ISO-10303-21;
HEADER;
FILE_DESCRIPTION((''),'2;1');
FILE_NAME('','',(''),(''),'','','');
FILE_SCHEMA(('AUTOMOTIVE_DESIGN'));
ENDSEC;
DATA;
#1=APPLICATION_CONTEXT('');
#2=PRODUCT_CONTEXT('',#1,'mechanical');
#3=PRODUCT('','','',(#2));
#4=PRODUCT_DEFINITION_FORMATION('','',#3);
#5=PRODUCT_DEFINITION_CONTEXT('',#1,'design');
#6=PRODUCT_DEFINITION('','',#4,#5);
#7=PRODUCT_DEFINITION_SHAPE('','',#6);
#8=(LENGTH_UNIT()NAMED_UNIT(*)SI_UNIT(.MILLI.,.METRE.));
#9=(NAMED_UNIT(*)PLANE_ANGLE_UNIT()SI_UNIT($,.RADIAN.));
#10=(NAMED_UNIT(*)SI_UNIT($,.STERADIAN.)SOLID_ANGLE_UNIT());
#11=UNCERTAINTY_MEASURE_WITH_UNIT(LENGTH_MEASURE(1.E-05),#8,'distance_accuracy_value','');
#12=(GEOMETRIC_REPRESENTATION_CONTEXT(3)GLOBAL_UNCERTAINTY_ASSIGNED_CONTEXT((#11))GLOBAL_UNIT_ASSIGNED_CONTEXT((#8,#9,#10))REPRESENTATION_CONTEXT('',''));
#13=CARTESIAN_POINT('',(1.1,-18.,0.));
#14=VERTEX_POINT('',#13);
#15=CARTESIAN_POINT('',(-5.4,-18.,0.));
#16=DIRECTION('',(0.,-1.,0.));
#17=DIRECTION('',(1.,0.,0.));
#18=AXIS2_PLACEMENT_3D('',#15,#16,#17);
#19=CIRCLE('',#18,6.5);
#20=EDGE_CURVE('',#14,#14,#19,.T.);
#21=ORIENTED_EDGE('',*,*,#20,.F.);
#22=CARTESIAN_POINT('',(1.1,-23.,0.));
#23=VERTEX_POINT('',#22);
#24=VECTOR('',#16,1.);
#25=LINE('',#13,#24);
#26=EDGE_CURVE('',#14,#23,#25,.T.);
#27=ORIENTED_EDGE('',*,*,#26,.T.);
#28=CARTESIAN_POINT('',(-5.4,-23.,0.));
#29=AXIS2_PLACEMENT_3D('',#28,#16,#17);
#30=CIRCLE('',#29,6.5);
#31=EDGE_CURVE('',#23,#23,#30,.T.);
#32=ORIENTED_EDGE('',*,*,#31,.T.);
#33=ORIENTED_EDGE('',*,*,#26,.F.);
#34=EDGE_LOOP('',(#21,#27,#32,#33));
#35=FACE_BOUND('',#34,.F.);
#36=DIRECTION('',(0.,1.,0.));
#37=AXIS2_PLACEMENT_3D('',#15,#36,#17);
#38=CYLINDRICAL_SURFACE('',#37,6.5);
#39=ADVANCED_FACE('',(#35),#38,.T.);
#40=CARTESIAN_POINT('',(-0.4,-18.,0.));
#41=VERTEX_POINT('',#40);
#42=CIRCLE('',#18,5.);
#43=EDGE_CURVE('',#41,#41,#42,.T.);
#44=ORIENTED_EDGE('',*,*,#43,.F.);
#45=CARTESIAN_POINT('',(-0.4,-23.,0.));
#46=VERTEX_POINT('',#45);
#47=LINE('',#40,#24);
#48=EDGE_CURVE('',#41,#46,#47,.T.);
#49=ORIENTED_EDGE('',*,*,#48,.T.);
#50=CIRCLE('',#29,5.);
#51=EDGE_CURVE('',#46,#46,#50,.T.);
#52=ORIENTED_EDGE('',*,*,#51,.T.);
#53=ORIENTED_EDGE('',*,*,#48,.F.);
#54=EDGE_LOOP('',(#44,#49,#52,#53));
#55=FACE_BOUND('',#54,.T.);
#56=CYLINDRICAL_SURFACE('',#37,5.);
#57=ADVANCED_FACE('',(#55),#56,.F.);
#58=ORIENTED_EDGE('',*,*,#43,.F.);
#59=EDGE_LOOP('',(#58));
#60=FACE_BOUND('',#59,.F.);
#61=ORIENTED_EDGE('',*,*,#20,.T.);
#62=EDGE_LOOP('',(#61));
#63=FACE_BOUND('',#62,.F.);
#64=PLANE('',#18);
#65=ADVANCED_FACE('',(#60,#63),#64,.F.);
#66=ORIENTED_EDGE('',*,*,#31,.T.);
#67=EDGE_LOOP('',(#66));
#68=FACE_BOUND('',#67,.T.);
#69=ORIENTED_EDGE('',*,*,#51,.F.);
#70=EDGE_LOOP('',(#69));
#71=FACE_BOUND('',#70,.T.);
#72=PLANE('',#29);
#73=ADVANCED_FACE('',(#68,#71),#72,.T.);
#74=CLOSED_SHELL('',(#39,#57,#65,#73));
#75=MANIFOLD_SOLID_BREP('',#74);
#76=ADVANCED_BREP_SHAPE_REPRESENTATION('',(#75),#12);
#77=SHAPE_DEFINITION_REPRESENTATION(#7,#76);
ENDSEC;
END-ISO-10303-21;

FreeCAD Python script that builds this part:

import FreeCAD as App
import Part
import Sketcher
Q = App.Units.Quantity

doc = App.newDocument("Part")
body = doc.addObject("PartDesign::Body", "Body")

sketch1 = doc.addObject("Sketcher::SketchObject", "Sketch")
body.addObject(sketch1)
sketch1.AttachmentSupport = (doc.XY_Plane, [""])
sketch1.MapMode = "FlatFace"
sketch1.addGeometry(Part.Circle(App.Vector(0, 0, 0), App.Vector(0, 0, 1), 5), False)
sketch1.addConstraint([
    Sketcher.Constraint("Coincident", 0, 3, -1, 1),
    Sketcher.Constraint("Diameter", 0, Q("10 mm")),
])
pad1 = doc.addObject("PartDesign::Pad", "Pad")
body.addObject(pad1)
pad1.Profile = sketch1
pad1.Length = 5
body2 = doc.addObject("PartDesign::Body", "Body001")
doc.recompute()

body.Placement = App.Placement(App.Vector(0, 0, 0), App.Rotation(App.Vector(1, 0, 0), 90))
boolean = doc.addObject("PartDesign::Boolean", "Boolean")
body2.addObject(boolean)
boolean.Type = "Fuse"
boolean.addObjects([body])
body3 = doc.addObject("PartDesign::Body", "Body002")
doc.recompute()

body2.Placement = App.Placement(App.Vector(-5.4, 46, 0), App.Rotation(App.Vector(0, 0, 1), 0))
boolean2 = doc.addObject("PartDesign::Boolean", "Boolean001")
body3.addObject(boolean2)
boolean2.Type = "Fuse"
boolean2.addObjects([body2])
body4 = doc.addObject("PartDesign::Body", "Body003")

sketch2 = doc.addObject("Sketcher::SketchObject", "Sketch001")
body4.addObject(sketch2)
sketch2.AttachmentSupport = (doc.getObject("XY_Plane003"), [""])
sketch2.MapMode = "FlatFace"
sketch2.addGeometry(Part.Circle(App.Vector(0, 0, 0), App.Vector(0, 0, 1), 6), False)
sketch2.addConstraint([
    Sketcher.Constraint("Coincident", 0, 3, -1, 1),
    Sketcher.Constraint("Diameter", 0, Q("13 mm")),
])
pad2 = doc.addObject("PartDesign::Pad", "Pad001")
body4.addObject(pad2)
pad2.Profile = sketch2
pad2.Length = 5
body5 = doc.addObject("PartDesign::Body", "Body004")
doc.recompute()

body4.Placement = App.Placement(App.Vector(0, 0, 0), App.Rotation(App.Vector(1, 0, 0), 90))
boolean3 = doc.addObject("PartDesign::Boolean", "Boolean002")
body5.addObject(boolean3)
boolean3.Type = "Fuse"
boolean3.addObjects([body4])
body6 = doc.addObject("PartDesign::Body", "Body005")
doc.recompute()

body5.Placement = App.Placement(App.Vector(-5.4, 46, 0), App.Rotation(App.Vector(0, 0, 1), 0))
boolean4 = doc.addObject("PartDesign::Boolean", "Boolean003")
body6.addObject(boolean4)
boolean4.Type = "Fuse"
boolean4.addObjects([body5])
doc.recompute()

boolean5 = doc.addObject("PartDesign::Boolean", "Boolean004")
body6.addObject(boolean5)
boolean5.Type = "Cut"
boolean5.addObjects([body3])
body7 = doc.addObject("PartDesign::Body", "Body006")
doc.recompute()

body6.Placement = App.Placement(App.Vector(0, -64, 0), App.Rotation(App.Vector(0, 0, 1), 0))
boolean6 = doc.addObject("PartDesign::Boolean", "Boolean005")
body7.addObject(boolean6)
boolean6.Type = "Fuse"
boolean6.addObjects([body6])

doc.recompute()
